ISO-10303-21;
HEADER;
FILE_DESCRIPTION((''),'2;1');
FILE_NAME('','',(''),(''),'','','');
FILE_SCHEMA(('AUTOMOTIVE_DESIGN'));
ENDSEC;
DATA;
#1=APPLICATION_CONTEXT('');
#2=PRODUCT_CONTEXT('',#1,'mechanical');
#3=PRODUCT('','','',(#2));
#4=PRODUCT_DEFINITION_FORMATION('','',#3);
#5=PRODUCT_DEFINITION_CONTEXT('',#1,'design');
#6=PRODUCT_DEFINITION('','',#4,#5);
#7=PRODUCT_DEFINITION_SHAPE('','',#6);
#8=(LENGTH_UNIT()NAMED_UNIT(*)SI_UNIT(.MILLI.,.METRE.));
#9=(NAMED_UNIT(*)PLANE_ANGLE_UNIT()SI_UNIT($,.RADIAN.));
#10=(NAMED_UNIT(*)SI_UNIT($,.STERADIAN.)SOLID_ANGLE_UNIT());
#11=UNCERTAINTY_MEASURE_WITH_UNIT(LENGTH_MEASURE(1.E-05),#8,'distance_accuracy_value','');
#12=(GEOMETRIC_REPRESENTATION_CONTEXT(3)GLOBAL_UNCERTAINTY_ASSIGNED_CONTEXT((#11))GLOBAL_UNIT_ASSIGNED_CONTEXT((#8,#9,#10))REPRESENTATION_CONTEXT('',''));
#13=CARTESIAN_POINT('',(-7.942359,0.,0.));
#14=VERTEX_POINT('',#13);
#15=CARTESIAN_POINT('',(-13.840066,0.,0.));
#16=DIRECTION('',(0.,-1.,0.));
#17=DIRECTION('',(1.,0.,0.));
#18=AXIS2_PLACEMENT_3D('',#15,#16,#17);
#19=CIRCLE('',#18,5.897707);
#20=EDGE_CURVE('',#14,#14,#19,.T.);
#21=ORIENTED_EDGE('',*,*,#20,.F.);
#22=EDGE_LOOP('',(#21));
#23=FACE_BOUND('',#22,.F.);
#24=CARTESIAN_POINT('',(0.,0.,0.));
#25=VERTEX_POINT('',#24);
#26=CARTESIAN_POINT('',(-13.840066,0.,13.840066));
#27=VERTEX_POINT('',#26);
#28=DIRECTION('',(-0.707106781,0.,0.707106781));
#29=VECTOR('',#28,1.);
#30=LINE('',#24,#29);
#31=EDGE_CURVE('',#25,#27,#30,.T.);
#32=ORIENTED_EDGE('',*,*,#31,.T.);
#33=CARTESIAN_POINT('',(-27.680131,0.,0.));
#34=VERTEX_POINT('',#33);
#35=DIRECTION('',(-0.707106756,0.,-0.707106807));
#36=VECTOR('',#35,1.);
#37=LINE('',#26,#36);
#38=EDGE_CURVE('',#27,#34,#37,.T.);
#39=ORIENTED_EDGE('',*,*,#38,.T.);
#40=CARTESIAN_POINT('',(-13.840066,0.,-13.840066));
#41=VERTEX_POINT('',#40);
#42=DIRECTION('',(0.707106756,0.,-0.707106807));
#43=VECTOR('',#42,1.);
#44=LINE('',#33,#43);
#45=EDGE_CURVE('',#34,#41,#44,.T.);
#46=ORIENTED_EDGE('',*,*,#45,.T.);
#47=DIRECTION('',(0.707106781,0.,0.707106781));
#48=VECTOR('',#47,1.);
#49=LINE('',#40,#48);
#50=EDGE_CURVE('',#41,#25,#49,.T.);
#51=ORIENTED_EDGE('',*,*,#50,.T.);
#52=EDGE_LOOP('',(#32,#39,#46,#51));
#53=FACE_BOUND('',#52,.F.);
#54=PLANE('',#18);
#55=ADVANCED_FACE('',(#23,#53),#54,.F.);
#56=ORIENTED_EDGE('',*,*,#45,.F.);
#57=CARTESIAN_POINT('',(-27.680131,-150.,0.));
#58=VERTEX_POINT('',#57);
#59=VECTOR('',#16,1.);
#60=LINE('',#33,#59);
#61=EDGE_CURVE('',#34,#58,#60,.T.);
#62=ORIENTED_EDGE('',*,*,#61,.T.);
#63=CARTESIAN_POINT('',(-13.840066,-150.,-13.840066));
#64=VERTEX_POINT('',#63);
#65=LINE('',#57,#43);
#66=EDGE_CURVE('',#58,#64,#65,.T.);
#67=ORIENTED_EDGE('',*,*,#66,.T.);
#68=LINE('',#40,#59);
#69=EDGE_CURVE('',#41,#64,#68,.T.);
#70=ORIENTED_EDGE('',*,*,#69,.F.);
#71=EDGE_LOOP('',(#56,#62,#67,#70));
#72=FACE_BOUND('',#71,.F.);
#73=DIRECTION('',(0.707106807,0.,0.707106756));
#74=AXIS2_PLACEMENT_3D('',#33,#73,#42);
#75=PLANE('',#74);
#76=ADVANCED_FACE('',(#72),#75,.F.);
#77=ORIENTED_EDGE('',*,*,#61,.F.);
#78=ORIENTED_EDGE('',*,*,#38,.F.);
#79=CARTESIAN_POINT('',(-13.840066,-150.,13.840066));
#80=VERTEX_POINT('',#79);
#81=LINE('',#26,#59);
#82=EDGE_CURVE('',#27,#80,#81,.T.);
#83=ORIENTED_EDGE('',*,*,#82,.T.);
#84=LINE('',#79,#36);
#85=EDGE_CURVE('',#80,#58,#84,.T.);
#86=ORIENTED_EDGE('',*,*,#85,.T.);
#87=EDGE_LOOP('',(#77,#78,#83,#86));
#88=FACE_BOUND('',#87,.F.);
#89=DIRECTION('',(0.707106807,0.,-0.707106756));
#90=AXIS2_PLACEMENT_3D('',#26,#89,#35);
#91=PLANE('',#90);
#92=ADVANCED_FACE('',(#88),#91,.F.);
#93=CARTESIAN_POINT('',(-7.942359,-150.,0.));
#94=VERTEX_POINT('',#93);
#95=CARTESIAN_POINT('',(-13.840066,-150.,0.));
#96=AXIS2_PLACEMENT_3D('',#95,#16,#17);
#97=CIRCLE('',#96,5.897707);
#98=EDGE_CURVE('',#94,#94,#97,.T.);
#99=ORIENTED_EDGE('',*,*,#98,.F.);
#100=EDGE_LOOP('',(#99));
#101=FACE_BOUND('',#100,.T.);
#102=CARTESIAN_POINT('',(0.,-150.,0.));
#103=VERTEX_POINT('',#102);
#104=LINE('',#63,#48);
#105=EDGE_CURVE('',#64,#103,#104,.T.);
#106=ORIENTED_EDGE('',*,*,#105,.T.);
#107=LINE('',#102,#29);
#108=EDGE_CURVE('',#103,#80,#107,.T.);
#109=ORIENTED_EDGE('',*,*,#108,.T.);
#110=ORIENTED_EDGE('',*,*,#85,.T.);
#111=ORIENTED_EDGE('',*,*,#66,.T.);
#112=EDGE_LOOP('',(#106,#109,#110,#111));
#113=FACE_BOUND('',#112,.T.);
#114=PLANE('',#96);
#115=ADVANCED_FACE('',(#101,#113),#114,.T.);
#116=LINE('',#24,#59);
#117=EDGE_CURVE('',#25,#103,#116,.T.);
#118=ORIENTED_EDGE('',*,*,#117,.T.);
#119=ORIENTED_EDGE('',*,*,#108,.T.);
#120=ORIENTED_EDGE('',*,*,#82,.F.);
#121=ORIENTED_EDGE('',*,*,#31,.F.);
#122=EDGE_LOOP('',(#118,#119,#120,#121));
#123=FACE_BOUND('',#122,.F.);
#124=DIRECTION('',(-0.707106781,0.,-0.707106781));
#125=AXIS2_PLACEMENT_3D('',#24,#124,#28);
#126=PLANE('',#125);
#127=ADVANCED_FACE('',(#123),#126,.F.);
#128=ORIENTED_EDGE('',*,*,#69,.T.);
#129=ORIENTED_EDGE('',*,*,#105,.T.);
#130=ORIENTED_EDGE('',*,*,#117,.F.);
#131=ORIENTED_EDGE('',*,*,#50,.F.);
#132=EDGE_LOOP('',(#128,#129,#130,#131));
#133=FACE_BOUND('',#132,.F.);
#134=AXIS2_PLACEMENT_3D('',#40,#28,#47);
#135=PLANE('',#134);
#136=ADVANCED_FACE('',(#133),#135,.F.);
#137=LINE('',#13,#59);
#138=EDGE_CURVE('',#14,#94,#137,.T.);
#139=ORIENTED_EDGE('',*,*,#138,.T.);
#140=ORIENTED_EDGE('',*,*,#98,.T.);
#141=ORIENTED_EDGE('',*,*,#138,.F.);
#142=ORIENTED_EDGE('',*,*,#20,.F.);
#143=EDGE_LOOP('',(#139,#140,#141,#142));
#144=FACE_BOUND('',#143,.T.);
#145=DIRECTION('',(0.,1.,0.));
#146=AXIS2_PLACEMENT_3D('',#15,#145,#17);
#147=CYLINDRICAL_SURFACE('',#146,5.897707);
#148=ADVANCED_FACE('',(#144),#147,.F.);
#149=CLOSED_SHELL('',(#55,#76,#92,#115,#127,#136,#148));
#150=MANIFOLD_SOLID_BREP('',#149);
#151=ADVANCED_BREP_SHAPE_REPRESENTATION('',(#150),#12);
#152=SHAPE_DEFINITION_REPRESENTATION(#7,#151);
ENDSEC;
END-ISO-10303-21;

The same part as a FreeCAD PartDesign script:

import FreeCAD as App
import Part
import Sketcher

V = App.Vector

doc = App.newDocument("Part")
body = doc.addObject("PartDesign::Body", "Body")

sketch1 = doc.addObject("Sketcher::SketchObject", "Sketch")
body.addObject(sketch1)
sketch1.AttachmentSupport = (doc.XZ_Plane, [""])
sketch1.MapMode = "FlatFace"
sketch1.addGeometry([
    Part.LineSegment(V(-14, 14, 0), V(-28, 0, 0)),
    Part.LineSegment(V(-28, 0, 0), V(-14, -14, 0)),
    Part.LineSegment(V(-14, -14, 0), V(0, 0, 0)),
    Part.LineSegment(V(0, 0, 0), V(-14, 14, 0)),
    Part.Circle(V(-14, 0, 0), V(0, 0, 1), 6),
], False)
sketch1.addConstraint([
    Sketcher.Constraint("Coincident", 0, 2, 1, 1),
    Sketcher.Constraint("Coincident", 1, 2, 2, 1),
    Sketcher.Constraint("Coincident", 2, 2, 3, 1),
    Sketcher.Constraint("Coincident", 3, 2, 0, 1),
    Sketcher.Constraint("Coincident", 2, 2, -1, 1),
    Sketcher.Constraint("Symmetric", 1, 2, 3, 2, -1),
    Sketcher.Constraint("PointOnObject", 4, 3, -1),
    Sketcher.Constraint("PointOnObject", 0, 2, -1),
    Sketcher.Constraint("Perpendicular", 0, 1),
    Sketcher.Constraint("Perpendicular", 1, 2),
    Sketcher.Constraint("Vertical", 4, 3, 1, 2),
    Sketcher.Constraint("Diameter", 4, 11.795414),
    Sketcher.Constraint("Distance", 0, 19.572808),
])
pad1 = doc.addObject("PartDesign::Pad", "Pad")
body.addObject(pad1)
pad1.Profile = sketch1
pad1.Length = 150

doc.recompute()
